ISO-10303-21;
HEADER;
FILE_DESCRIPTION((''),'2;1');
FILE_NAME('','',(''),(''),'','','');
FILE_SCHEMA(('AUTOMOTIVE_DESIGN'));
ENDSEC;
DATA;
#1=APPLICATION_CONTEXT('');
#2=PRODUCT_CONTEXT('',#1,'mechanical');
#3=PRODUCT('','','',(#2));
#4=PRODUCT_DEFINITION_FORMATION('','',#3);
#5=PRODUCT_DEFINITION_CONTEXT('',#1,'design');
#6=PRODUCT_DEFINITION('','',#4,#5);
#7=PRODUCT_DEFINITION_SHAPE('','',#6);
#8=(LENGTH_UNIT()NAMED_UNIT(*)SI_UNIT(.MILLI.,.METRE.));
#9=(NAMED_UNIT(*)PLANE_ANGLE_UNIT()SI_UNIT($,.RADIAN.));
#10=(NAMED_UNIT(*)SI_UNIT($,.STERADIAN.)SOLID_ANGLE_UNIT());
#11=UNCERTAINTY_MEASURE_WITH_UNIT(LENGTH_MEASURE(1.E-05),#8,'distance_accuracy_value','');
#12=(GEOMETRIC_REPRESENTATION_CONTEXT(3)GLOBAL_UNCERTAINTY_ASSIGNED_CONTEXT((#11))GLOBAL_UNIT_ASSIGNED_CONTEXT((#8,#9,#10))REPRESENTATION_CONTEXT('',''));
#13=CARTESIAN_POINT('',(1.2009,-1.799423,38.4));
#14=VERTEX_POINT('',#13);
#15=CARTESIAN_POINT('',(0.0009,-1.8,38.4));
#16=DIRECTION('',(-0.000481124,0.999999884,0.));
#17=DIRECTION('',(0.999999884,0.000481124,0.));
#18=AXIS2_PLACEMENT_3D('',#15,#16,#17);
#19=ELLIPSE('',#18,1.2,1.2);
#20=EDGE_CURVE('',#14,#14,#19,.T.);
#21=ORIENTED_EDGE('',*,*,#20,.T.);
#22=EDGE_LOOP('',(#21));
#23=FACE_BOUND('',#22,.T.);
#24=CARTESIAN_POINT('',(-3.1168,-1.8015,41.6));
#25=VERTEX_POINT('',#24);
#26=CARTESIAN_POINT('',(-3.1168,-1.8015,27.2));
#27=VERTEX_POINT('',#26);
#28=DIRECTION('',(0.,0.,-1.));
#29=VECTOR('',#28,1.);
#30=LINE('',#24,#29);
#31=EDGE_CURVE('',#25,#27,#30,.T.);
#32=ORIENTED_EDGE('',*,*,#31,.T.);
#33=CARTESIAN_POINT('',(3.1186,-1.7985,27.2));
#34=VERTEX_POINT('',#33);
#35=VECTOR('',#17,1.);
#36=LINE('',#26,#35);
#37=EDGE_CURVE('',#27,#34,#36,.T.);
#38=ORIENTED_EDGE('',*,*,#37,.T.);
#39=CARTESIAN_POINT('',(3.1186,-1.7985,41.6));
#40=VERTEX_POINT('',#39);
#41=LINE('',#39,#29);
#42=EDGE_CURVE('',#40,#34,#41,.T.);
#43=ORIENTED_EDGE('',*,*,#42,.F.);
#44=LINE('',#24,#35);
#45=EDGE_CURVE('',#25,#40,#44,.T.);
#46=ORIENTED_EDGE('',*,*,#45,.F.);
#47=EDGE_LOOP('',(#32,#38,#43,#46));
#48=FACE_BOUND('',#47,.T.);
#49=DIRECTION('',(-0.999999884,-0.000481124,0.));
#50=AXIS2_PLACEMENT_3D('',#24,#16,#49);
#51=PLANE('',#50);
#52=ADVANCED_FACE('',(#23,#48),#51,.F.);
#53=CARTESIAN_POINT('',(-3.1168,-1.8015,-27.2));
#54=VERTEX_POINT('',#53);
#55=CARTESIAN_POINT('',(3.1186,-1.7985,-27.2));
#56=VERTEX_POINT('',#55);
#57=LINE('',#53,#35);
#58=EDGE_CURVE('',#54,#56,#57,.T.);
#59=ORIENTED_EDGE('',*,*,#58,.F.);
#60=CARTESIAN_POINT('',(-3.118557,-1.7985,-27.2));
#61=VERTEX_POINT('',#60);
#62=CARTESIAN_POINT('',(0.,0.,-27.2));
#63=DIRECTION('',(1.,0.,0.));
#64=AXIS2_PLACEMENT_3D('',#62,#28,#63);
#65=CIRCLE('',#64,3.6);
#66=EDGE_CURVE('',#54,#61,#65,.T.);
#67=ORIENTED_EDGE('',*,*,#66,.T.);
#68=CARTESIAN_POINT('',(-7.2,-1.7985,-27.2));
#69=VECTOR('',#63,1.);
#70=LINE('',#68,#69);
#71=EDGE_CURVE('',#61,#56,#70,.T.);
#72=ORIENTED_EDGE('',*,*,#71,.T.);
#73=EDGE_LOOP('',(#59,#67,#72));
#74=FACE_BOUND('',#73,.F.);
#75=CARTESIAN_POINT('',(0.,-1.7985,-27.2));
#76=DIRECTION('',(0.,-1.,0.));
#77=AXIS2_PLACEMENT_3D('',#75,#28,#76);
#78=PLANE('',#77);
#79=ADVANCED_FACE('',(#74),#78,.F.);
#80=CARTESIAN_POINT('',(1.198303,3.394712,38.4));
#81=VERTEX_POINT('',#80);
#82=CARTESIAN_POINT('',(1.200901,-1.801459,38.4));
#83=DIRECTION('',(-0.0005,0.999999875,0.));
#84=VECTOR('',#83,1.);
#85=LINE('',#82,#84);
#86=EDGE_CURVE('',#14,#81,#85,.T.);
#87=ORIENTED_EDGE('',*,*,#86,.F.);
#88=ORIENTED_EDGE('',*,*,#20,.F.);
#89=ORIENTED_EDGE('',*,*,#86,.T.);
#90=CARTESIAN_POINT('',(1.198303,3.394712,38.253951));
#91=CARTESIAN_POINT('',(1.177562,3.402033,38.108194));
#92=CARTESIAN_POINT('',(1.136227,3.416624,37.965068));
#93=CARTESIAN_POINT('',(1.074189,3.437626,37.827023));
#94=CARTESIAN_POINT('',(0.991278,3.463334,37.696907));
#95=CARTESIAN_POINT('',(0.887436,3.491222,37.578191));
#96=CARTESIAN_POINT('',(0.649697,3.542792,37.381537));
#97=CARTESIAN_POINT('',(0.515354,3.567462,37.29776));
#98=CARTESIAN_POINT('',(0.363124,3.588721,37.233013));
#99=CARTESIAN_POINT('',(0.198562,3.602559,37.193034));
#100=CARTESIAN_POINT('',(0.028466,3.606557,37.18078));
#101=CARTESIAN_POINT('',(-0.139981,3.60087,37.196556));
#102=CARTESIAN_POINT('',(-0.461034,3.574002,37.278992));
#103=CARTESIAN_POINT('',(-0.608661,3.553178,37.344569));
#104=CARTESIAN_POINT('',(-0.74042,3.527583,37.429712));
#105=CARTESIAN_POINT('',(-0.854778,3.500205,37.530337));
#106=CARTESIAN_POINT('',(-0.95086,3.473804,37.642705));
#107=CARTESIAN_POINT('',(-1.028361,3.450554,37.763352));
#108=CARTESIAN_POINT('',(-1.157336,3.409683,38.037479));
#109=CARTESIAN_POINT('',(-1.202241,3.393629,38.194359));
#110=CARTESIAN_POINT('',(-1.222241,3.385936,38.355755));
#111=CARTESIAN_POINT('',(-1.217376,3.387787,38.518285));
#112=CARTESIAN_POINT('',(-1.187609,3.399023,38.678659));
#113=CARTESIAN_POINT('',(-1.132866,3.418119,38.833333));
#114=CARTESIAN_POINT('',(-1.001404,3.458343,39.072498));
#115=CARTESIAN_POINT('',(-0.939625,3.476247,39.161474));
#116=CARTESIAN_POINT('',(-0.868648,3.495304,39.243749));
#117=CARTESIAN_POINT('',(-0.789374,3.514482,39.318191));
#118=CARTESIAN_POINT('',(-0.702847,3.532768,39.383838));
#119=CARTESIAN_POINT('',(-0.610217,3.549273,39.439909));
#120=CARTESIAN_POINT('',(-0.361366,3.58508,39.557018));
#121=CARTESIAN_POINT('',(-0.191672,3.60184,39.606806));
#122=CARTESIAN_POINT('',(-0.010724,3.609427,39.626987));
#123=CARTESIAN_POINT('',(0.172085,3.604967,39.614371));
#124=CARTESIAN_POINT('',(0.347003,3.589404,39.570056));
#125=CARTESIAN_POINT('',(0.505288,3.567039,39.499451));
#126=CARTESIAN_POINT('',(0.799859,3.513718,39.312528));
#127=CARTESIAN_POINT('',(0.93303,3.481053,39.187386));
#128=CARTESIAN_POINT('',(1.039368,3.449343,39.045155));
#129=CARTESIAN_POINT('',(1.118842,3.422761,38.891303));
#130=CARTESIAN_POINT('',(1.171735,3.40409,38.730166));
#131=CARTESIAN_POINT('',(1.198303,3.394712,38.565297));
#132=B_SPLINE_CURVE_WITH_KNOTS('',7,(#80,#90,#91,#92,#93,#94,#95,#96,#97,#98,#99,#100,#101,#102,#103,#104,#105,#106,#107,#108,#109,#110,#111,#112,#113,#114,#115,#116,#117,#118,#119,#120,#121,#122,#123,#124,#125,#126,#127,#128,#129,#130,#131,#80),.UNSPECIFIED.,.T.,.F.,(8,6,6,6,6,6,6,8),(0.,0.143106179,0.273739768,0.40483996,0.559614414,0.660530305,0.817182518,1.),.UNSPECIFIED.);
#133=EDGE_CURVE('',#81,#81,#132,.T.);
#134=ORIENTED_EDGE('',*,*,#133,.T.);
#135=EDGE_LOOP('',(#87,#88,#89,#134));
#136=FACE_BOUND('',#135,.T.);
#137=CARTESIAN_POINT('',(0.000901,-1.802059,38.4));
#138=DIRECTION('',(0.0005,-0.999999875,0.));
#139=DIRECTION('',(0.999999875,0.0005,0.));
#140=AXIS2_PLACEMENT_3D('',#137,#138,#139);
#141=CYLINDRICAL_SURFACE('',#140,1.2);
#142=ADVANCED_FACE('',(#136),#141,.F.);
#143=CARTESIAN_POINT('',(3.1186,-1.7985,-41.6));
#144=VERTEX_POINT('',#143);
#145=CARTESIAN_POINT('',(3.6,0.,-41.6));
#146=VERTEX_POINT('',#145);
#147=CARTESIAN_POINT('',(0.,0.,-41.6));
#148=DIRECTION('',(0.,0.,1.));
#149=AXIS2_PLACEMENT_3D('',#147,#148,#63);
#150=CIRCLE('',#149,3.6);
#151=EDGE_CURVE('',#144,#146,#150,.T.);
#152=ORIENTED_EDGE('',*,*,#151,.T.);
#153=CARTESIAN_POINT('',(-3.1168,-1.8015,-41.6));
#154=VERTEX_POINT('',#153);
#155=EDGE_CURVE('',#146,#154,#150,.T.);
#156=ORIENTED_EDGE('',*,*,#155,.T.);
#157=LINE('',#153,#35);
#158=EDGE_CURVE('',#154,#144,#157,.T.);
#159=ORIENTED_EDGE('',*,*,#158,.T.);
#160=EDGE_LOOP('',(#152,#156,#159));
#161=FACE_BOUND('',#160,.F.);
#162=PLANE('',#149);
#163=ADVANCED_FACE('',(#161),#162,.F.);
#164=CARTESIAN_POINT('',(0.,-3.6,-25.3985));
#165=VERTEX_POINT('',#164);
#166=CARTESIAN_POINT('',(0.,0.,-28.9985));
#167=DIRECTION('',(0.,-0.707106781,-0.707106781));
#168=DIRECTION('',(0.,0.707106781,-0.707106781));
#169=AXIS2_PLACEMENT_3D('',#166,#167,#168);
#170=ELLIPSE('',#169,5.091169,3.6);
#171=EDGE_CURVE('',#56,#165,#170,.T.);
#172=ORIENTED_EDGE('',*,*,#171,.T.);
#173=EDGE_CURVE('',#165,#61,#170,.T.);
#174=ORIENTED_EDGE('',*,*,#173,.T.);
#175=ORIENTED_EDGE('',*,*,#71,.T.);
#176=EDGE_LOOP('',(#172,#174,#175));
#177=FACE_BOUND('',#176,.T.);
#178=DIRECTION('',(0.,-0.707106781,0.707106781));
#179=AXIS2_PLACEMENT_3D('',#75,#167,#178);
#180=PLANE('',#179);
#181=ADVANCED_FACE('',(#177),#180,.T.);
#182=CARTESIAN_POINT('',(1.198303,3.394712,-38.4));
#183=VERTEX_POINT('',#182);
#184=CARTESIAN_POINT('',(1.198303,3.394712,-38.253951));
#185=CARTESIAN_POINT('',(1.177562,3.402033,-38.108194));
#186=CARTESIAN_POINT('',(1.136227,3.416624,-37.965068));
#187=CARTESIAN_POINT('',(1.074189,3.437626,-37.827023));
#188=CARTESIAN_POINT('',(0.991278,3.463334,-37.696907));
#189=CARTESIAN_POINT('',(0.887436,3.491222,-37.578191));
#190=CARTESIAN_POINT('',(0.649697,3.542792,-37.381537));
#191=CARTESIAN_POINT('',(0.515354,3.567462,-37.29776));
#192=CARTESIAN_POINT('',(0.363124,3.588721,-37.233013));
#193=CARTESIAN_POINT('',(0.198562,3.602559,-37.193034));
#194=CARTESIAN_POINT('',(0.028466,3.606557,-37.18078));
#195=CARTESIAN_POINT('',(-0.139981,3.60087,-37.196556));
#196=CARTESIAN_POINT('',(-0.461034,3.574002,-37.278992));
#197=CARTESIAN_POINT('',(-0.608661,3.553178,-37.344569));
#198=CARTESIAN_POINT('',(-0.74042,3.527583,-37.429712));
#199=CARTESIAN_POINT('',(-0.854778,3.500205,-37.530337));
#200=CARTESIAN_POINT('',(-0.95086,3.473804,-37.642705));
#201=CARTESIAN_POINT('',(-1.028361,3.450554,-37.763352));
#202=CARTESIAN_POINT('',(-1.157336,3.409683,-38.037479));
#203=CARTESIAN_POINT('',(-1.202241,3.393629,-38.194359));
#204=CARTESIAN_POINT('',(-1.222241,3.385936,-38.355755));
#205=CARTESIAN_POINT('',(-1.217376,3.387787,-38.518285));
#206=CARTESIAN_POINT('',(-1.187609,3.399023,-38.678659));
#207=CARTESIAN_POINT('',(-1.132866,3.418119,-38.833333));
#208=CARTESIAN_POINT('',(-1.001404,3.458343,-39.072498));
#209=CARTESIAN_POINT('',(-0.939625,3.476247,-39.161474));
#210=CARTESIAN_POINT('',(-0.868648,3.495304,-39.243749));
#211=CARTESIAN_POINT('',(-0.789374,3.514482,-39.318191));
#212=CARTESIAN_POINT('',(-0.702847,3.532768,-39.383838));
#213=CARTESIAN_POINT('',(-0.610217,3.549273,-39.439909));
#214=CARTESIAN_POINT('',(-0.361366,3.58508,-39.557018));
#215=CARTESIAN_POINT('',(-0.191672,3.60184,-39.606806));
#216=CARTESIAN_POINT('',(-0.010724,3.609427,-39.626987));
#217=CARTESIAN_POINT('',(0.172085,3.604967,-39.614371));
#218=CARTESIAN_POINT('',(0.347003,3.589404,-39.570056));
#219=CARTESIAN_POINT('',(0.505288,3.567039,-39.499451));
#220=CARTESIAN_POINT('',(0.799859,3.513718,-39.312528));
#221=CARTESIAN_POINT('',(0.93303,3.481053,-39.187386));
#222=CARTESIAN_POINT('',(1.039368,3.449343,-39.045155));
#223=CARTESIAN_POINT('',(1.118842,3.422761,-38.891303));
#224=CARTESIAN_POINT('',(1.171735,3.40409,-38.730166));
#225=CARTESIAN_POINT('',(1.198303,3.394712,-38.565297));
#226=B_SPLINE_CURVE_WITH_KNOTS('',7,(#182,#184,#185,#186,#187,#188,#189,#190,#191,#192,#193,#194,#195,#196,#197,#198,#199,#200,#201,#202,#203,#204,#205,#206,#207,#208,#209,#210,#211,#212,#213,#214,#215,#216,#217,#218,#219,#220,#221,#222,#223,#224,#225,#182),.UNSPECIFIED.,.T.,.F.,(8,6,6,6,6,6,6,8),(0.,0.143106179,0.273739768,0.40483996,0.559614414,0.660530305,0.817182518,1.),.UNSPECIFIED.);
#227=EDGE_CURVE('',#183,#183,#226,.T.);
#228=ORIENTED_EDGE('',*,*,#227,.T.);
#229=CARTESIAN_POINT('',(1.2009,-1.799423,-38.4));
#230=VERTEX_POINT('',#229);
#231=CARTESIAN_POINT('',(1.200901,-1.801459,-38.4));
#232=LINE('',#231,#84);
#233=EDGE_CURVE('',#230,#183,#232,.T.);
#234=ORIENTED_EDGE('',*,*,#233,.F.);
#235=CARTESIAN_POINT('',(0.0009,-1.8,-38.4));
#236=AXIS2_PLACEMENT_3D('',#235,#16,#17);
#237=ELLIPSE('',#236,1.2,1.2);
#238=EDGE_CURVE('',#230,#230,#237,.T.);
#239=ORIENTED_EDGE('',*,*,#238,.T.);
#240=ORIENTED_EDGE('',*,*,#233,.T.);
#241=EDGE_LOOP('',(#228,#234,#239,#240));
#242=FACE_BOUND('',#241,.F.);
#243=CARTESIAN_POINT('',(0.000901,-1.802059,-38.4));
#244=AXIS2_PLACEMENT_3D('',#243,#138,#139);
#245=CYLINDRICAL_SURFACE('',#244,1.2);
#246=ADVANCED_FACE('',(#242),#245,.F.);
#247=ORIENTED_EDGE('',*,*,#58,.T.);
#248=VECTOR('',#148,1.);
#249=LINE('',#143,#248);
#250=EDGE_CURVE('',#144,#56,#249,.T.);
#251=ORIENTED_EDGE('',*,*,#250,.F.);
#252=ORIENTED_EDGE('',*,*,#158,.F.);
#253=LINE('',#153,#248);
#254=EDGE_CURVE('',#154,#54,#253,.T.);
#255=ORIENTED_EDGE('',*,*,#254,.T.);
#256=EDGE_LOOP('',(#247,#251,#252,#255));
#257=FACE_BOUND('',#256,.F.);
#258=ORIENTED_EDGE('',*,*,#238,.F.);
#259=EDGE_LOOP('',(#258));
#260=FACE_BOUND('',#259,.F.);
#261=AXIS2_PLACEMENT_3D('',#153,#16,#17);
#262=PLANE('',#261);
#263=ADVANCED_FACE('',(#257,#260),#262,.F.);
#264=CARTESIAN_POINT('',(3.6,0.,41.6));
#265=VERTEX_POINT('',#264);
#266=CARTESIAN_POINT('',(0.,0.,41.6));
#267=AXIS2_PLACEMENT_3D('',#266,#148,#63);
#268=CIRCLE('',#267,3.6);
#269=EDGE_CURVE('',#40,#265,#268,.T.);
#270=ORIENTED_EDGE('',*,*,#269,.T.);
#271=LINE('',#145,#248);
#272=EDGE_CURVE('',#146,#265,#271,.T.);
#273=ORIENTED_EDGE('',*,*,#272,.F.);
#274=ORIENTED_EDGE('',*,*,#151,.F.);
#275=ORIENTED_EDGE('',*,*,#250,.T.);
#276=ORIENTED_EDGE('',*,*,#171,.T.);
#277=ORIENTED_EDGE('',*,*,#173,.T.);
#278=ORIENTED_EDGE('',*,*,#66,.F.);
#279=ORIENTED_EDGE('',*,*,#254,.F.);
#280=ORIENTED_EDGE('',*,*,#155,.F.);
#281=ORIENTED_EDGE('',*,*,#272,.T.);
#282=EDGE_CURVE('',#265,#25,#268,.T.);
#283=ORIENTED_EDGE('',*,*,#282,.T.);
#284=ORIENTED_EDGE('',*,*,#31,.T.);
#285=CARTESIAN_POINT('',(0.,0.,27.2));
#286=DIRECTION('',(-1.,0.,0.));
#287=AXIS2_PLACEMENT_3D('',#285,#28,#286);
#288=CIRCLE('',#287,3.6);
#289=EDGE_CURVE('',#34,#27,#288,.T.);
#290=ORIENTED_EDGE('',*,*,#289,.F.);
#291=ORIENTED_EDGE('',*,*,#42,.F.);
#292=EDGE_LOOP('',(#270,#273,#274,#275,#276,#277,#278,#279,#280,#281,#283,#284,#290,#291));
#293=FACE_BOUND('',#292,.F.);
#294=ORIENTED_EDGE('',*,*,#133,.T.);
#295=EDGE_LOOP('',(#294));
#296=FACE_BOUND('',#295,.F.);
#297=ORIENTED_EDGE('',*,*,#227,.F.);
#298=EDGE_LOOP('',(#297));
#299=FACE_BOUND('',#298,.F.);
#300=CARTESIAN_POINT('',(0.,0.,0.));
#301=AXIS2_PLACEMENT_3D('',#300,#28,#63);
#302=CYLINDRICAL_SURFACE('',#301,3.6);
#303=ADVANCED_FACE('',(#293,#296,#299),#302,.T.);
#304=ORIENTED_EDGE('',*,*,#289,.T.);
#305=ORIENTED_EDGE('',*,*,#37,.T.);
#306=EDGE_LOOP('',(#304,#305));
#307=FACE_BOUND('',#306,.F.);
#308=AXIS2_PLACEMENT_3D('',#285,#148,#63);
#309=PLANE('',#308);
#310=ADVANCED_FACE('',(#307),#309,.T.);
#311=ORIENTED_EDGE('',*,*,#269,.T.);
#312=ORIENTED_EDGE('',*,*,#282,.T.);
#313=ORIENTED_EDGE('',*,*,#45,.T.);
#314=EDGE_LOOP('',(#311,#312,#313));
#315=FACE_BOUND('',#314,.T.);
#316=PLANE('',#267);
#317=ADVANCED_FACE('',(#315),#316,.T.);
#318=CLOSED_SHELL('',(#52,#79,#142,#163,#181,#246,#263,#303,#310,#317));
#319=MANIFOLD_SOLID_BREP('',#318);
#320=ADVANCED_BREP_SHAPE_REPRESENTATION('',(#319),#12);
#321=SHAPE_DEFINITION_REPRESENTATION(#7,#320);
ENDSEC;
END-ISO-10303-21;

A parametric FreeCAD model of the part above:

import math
import FreeCAD as App
import Part
import Sketcher
Q = App.Units.Quantity


def add_polygon(sketch, points):
    """Adds a closed chain of lines whose ends are joined by coincident constraints."""
    first, n = sketch.GeometryCount, len(points)
    for a, b in zip(points, points[1:] + points[:1]):
        sketch.addGeometry(Part.LineSegment(App.Vector(*a, 0), App.Vector(*b, 0)), False)
    for i in range(n):
        sketch.addConstraint(Sketcher.Constraint("Coincident", first + i, 2, first + (i + 1) % n, 1))

doc = App.newDocument("Part")
body = doc.addObject("PartDesign::Body", "Body")

sketch1 = doc.addObject("Sketcher::SketchObject", "Sketch")
body.addObject(sketch1)
sketch1.AttachmentSupport = (doc.XY_Plane, [""])
sketch1.MapMode = "FlatFace"
sketch1.addGeometry(Part.Circle(App.Vector(0, 0, 0), App.Vector(0, 0, 1), 3.6), False)
sketch1.addConstraint([
    Sketcher.Constraint("Coincident", 0, 3, -1, 1),
    Sketcher.Constraint("Diameter", 0, Q("7.2 mm")),
])
pad1 = doc.addObject("PartDesign::Pad", "Pad")
body.addObject(pad1)
pad1.Profile = sketch1
pad1.Length = 83.2
pad1.Midplane = True

sketch2 = doc.addObject("Sketcher::SketchObject", "Sketch001")
body.addObject(sketch2)
sketch2.AttachmentSupport = (doc.XY_Plane, [""])
sketch2.MapMode = "FlatFace"
sketch2.AttachmentOffset = App.Placement(App.Vector(0, 0, -41.6), App.Rotation())
sketch2.addGeometry([
    Part.LineSegment(App.Vector(-3.1168, -1.8015, 0), App.Vector(3.1186, -1.7985, 0)),
    Part.ArcOfCircle(Part.Circle(App.Vector(0, 0, 0), App.Vector(0, 0, 1), 3.6), math.radians(-149.972231), math.radians(-29.972095)),
], False)
sketch2.addConstraint([
    Sketcher.Constraint("Coincident", 0, 1, 1, 1),
    Sketcher.Constraint("Coincident", 1, 2, 0, 2),
    Sketcher.Constraint("Coincident", 1, 3, -1, 1),
    Sketcher.Constraint("Radius", 1, Q("3.6 mm")),
    Sketcher.Constraint("DistanceY", 0, 1, 1, 2, Q("0.003 mm")),
    Sketcher.Constraint("Distance", 0, Q("6.2354 mm")),
])
pocket1 = doc.addObject("PartDesign::Pocket", "Pocket")
body.addObject(pocket1)
pocket1.Profile = sketch2
pocket1.Length = 14.4
pocket1.Reversed = True

sketch3 = doc.addObject("Sketcher::SketchObject", "Sketch002")
body.addObject(sketch3)
sketch3.Placement = App.Placement(App.Vector(3.1186, -1.7985, -41.6), App.Rotation(App.Vector(0.999999875, 0.0005, 0), App.Vector(0, 0, 1), App.Vector(0.0005, -0.999999875, 0), "ZXY"))
sketch3.addGeometry(Part.Circle(App.Vector(-3.1177, 3.2, 0), App.Vector(0, 0, 1), 1.2), False)
sketch3.addConstraint([
    Sketcher.Constraint("Diameter", 0, Q("2.4 mm")),
    Sketcher.Constraint("DistanceY", -1, 1, 0, 3, Q("3.2 mm")),
    Sketcher.Constraint("DistanceX", 0, 3, -1, 1, Q("3.1177 mm")),
])
pocket2 = doc.addObject("PartDesign::Pocket", "Pocket001")
body.addObject(pocket2)
pocket2.Profile = sketch3
pocket2.Length = 14.4
doc.recompute()

mirrored = doc.addObject("PartDesign::Mirrored", "Mirrored")
body.addObject(mirrored)
mirrored.Originals = [pocket2, pocket1]
mirrored.MirrorPlane = (doc.XY_Plane, [""])
body.Tip = mirrored

sketch4 = doc.addObject("Sketcher::SketchObject", "Sketch003")
body.addObject(sketch4)
sketch4.AttachmentSupport = (doc.YZ_Plane, [""])
sketch4.MapMode = "FlatFace"
add_polygon(sketch4, [(-3.6, -25.3985), (-3.6, -27.2), (-1.7985, -27.2)])
sketch4.addConstraint([
    Sketcher.Constraint("Vertical", 0),
    Sketcher.Constraint("Horizontal", 1),
    Sketcher.Constraint("Equal", 1, 0),
    Sketcher.Constraint("DistanceX", 0, 2, -1, 1, Q("3.6 mm")),
    Sketcher.Constraint("DistanceY", 0, 2, -1, 1, Q("27.2 mm")),
    Sketcher.Constraint("DistanceX", 1, 1, 1, 2, Q("1.8015 mm")),
])
pocket3 = doc.addObject("PartDesign::Pocket", "Pocket002")
body.addObject(pocket3)
pocket3.Profile = sketch4
pocket3.Length = 14.4
pocket3.Midplane = True

doc.recompute()
